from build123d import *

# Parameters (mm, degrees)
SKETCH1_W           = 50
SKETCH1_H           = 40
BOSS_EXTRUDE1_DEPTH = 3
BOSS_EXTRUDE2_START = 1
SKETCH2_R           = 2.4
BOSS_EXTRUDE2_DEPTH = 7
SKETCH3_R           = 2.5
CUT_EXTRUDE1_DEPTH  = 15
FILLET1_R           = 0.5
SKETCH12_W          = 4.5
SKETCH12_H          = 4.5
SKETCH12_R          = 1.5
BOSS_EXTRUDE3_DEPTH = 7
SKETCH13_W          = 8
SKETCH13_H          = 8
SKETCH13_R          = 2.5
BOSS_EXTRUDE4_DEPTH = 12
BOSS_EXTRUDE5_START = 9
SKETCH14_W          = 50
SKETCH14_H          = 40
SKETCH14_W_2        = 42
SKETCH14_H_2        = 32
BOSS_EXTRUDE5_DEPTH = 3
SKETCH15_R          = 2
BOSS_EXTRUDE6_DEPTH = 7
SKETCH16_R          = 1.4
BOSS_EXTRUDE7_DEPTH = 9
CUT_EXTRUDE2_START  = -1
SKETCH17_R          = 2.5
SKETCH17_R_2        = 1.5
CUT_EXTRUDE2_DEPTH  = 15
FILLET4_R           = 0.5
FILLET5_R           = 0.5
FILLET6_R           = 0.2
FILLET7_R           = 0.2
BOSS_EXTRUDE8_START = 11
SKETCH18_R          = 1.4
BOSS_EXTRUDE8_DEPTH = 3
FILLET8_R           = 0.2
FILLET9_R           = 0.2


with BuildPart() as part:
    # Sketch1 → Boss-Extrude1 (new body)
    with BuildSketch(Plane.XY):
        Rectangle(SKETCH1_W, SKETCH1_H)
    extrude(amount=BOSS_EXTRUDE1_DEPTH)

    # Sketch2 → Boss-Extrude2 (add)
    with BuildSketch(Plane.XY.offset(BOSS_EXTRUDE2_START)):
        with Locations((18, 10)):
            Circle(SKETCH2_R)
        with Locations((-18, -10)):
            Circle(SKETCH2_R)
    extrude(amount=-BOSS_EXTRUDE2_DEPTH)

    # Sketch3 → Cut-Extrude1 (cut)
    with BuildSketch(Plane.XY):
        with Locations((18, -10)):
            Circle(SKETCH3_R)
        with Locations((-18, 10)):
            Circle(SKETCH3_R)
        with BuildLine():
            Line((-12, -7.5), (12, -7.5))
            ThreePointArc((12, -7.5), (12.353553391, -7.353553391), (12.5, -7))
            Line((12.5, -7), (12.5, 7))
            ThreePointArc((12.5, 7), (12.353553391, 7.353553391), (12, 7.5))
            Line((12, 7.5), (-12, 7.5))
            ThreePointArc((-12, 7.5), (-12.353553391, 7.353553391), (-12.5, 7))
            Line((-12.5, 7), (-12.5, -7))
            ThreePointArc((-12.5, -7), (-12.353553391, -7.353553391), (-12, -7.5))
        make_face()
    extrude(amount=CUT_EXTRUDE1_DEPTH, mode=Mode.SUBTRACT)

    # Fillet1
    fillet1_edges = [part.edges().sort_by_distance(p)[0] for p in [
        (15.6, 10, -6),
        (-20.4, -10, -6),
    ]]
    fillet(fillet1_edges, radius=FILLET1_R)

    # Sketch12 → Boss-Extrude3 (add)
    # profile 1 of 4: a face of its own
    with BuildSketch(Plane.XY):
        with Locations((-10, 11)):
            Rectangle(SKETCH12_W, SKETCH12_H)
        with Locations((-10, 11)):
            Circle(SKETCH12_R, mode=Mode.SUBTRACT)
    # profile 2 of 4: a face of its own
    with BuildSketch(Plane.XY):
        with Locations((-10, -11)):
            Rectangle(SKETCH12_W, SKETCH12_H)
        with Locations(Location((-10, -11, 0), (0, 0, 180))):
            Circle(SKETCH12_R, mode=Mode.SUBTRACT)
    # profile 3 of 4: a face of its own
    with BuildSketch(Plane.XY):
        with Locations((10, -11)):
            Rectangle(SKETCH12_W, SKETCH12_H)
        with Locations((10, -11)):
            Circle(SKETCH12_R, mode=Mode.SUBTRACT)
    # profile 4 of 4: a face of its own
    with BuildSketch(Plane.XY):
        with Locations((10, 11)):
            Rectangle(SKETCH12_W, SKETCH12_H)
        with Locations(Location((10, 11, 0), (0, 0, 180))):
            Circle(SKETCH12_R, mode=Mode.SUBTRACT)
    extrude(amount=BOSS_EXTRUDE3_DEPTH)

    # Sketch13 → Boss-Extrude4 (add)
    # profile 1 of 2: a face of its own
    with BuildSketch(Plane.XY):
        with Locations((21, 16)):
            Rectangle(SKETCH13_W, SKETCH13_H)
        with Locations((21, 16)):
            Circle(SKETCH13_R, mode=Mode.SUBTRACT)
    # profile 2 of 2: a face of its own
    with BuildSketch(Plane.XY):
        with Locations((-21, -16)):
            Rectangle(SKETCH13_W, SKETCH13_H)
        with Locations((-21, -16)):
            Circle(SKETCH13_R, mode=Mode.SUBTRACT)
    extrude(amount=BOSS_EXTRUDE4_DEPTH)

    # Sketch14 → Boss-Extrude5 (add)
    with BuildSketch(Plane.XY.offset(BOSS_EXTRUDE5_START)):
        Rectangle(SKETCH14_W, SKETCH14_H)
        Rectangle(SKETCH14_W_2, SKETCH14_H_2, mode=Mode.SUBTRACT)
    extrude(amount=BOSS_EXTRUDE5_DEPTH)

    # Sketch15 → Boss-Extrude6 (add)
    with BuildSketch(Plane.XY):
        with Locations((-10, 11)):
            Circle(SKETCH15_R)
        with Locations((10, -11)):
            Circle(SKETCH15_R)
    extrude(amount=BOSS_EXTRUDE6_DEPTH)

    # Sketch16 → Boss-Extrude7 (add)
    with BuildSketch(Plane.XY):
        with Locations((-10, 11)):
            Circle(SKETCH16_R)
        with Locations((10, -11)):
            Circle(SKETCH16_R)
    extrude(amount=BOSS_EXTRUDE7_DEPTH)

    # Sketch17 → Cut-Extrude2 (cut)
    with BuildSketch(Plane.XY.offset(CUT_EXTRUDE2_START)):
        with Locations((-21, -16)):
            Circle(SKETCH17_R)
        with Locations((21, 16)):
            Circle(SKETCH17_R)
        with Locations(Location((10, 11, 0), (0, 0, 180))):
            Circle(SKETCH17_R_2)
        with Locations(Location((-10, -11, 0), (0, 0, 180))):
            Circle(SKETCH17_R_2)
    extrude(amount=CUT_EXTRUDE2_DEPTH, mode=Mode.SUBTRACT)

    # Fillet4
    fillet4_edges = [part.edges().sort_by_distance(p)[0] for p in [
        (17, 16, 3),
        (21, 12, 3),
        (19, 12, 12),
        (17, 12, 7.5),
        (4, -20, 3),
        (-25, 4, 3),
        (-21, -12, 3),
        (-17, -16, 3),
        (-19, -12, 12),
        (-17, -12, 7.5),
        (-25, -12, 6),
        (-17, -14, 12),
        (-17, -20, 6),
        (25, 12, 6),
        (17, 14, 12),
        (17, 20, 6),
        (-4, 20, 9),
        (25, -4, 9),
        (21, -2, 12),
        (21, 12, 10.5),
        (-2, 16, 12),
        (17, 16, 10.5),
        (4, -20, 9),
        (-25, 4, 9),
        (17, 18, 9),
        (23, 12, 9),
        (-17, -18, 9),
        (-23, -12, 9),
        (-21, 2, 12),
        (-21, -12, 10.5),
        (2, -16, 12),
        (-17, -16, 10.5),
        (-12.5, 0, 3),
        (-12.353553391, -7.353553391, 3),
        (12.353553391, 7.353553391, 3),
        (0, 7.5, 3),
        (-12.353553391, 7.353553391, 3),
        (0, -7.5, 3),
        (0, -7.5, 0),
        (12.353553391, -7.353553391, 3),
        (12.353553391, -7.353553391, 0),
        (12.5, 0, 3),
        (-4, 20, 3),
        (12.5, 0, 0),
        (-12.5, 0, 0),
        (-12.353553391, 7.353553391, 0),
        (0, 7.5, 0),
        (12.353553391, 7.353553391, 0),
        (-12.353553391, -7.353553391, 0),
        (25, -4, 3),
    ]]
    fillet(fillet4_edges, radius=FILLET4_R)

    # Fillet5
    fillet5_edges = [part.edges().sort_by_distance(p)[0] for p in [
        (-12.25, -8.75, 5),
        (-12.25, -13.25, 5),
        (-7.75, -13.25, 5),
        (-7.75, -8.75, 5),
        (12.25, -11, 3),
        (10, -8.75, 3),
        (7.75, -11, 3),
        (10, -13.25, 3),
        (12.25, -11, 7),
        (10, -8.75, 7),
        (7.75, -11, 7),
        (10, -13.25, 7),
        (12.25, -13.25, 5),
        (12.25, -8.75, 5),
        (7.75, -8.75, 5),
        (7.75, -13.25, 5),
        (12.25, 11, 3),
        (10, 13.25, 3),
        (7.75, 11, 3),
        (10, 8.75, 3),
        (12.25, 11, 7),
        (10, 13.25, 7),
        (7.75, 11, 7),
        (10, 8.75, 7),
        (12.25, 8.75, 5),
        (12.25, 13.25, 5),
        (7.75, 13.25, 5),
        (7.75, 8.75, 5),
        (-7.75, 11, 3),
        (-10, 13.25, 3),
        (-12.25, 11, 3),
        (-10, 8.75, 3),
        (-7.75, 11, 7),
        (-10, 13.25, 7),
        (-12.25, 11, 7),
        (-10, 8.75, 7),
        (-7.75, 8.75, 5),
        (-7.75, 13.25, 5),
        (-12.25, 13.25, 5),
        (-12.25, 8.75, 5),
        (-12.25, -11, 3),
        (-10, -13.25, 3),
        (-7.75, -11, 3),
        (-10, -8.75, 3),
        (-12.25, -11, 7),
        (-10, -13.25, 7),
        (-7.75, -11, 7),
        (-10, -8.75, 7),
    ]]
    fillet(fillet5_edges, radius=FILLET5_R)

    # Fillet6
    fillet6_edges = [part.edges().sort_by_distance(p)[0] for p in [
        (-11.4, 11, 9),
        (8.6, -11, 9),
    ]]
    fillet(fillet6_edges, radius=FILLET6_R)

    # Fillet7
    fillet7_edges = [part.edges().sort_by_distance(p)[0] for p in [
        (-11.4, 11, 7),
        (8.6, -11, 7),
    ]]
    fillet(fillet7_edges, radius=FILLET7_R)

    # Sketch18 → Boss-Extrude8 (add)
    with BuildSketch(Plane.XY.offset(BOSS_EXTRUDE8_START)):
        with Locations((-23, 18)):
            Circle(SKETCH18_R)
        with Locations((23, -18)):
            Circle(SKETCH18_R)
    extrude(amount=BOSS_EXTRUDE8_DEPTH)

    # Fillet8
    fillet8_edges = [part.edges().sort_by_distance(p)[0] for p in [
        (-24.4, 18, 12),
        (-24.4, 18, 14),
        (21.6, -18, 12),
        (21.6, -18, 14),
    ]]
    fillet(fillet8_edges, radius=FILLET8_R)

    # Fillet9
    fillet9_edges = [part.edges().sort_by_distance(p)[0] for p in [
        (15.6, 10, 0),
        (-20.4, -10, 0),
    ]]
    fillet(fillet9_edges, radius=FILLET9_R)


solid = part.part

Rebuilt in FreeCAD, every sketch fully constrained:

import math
import FreeCAD as App
import Part
import Sketcher
from FreeCAD import Vector
Q = App.Units.Quantity


def edges_at(feature, points):
    """Names of the edges that pass closest to the given points."""
    edges = feature.Shape.Edges
    near = lambda p: min(range(len(edges)), key=lambda i: edges[i].distToShape(Part.Vertex(*p))[0])
    return sorted({f"Edge{near(p) + 1}" for p in points})

doc = App.newDocument("Part")
body = doc.addObject("PartDesign::Body", "Body")

sketch1 = doc.addObject("Sketcher::SketchObject", "Sketch")
body.addObject(sketch1)
sketch1.AttachmentSupport = (doc.XY_Plane, [""])
sketch1.MapMode = "FlatFace"
sketch1.addGeometry([
    Part.LineSegment(Vector(-25, 20, 0), Vector(-25, -20, 0)),
    Part.LineSegment(Vector(-25, -20, 0), Vector(25, -20, 0)),
    Part.LineSegment(Vector(25, -20, 0), Vector(25, 20, 0)),
    Part.LineSegment(Vector(25, 20, 0), Vector(-25, 20, 0)),
], False)
sketch1.addConstraint([
    Sketcher.Constraint("Coincident", 0, 2, 1, 1),
    Sketcher.Constraint("Coincident", 1, 2, 2, 1),
    Sketcher.Constraint("Coincident", 2, 2, 3, 1),
    Sketcher.Constraint("Coincident", 3, 2, 0, 1),
    Sketcher.Constraint("Vertical", 0),
    Sketcher.Constraint("Horizontal", 1),
    Sketcher.Constraint("Vertical", 2),
    Sketcher.Constraint("Horizontal", 3),
    Sketcher.Constraint("Symmetric", 0, 2, 2, 2, -1, 1),
    Sketcher.Constraint("DistanceX", 1, 1, 1, 2, Q("50 mm")),
    Sketcher.Constraint("DistanceY", 0, 2, 0, 1, Q("40 mm")),
])
pad1 = doc.addObject("PartDesign::Pad", "Pad")
body.addObject(pad1)
pad1.Profile = sketch1
pad1.Length = 3

sketch2 = doc.addObject("Sketcher::SketchObject", "Sketch001")
body.addObject(sketch2)
sketch2.AttachmentSupport = (doc.XY_Plane, [""])
sketch2.MapMode = "FlatFace"
sketch2.AttachmentOffset = App.Placement(Vector(0, 0, 1), App.Rotation())
sketch2.addGeometry([
    Part.Circle(Vector(18, 10, 0), Vector(0, 0, 1), 2.4),
    Part.Circle(Vector(-18, -10, 0), Vector(0, 0, 1), 2.4),
], False)
sketch2.addConstraint([
    Sketcher.Constraint("Equal", 0, 1),
    Sketcher.Constraint("Symmetric", 0, 3, 1, 3, -1, 1),
    Sketcher.Constraint("Diameter", 0, Q("4.8 mm")),
    Sketcher.Constraint("DistanceX", -1, 1, 0, 3, Q("18 mm")),
    Sketcher.Constraint("DistanceY", -1, 1, 0, 3, Q("10 mm")),
])
pad2 = doc.addObject("PartDesign::Pad", "Pad001")
body.addObject(pad2)
pad2.Profile = sketch2
pad2.Length = 7
pad2.Reversed = True

sketch3 = doc.addObject("Sketcher::SketchObject", "Sketch002")
body.addObject(sketch3)
sketch3.AttachmentSupport = (doc.XY_Plane, [""])
sketch3.MapMode = "FlatFace"
sketch3.addGeometry([
    Part.Circle(Vector(18, -10, 0), Vector(0, 0, 1), 2.5),
    Part.Circle(Vector(-18, 10, 0), Vector(0, 0, 1), 2.5),
    Part.LineSegment(Vector(-12, -7.5, 0), Vector(12, -7.5, 0)),
    Part.ArcOfCircle(Part.Circle(Vector(12, -7, 0), Vector(0, 0, 1), 0.5), math.radians(-90), math.radians(0)),
    Part.LineSegment(Vector(12.5, -7, 0), Vector(12.5, 7, 0)),
    Part.ArcOfCircle(Part.Circle(Vector(12, 7, 0), Vector(0, 0, 1), 0.5), math.radians(0), math.radians(90)),
    Part.LineSegment(Vector(12, 7.5, 0), Vector(-12, 7.5, 0)),
    Part.ArcOfCircle(Part.Circle(Vector(-12, 7, 0), Vector(0, 0, 1), 0.5), math.radians(90), math.radians(180)),
    Part.LineSegment(Vector(-12.5, 7, 0), Vector(-12.5, -7, 0)),
    Part.ArcOfCircle(Part.Circle(Vector(-12, -7, 0), Vector(0, 0, 1), 0.5), math.radians(180), math.radians(270)),
], False)
sketch3.addConstraint([
    Sketcher.Constraint("Tangent", 2, 2, 3, 1),
    Sketcher.Constraint("Tangent", 3, 2, 4, 1),
    Sketcher.Constraint("Tangent", 4, 2, 5, 1),
    Sketcher.Constraint("Tangent", 5, 2, 6, 1),
    Sketcher.Constraint("Tangent", 6, 2, 7, 1),
    Sketcher.Constraint("Tangent", 7, 2, 8, 1),
    Sketcher.Constraint("Tangent", 8, 2, 9, 1),
    Sketcher.Constraint("Tangent", 9, 2, 2, 1),
    Sketcher.Constraint("Horizontal", 2),
    Sketcher.Constraint("Vertical", 4),
    Sketcher.Constraint("Horizontal", 6),
    Sketcher.Constraint("Vertical", 8),
    Sketcher.Constraint("Equal", 0, 1),
    Sketcher.Constraint("Equal", 3, 5),
    Sketcher.Constraint("Equal", 5, 7),
    Sketcher.Constraint("Equal", 7, 9),
    Sketcher.Constraint("Symmetric", 0, 3, 1, 3, -1, 1),
    Sketcher.Constraint("Symmetric", 3, 3, 7, 3, -1, 1),
    Sketcher.Constraint("Diameter", 0, Q("5 mm")),
    Sketcher.Constraint("Radius", 3, Q("0.5 mm")),
    Sketcher.Constraint("DistanceX", 2, 1, 2, 2, Q("24 mm")),
    Sketcher.Constraint("DistanceY", 4, 1, 4, 2, Q("14 mm")),
    Sketcher.Constraint("DistanceX", -1, 1, 0, 3, Q("18 mm")),
    Sketcher.Constraint("DistanceY", 0, 3, -1, 1, Q("10 mm")),
])
pocket1 = doc.addObject("PartDesign::Pocket", "Pocket")
body.addObject(pocket1)
pocket1.Profile = sketch3
pocket1.Length = 15
pocket1.Reversed = True
doc.recompute()

fillet = doc.addObject("PartDesign::Fillet", "Fillet")
body.addObject(fillet)
fillet.Base = (pocket1, edges_at(pocket1, [(15.6, 10, -6), (-20.4, -10, -6)]))
fillet.Radius = 0.5

sketch4 = doc.addObject("Sketcher::SketchObject", "Sketch003")
body.addObject(sketch4)
sketch4.AttachmentSupport = (doc.XY_Plane, [""])
sketch4.MapMode = "FlatFace"
sketch4.addGeometry([
    Part.LineSegment(Vector(-12.25, 13.25, 0), Vector(-12.25, 8.75, 0)),
    Part.LineSegment(Vector(-12.25, 8.75, 0), Vector(-7.75, 8.75, 0)),
    Part.LineSegment(Vector(-7.75, 8.75, 0), Vector(-7.75, 13.25, 0)),
    Part.LineSegment(Vector(-7.75, 13.25, 0), Vector(-12.25, 13.25, 0)),
    Part.Circle(Vector(-10, 11, 0), Vector(0, 0, 1), 1.5),
    Part.LineSegment(Vector(-12.25, -8.75, 0), Vector(-12.25, -13.25, 0)),
    Part.LineSegment(Vector(-12.25, -13.25, 0), Vector(-7.75, -13.25, 0)),
    Part.LineSegment(Vector(-7.75, -13.25, 0), Vector(-7.75, -8.75, 0)),
    Part.LineSegment(Vector(-7.75, -8.75, 0), Vector(-12.25, -8.75, 0)),
    Part.Circle(Vector(-10, -11, 0), Vector(0, 0, 1), 1.5),
    Part.LineSegment(Vector(7.75, -8.75, 0), Vector(7.75, -13.25, 0)),
    Part.LineSegment(Vector(7.75, -13.25, 0), Vector(12.25, -13.25, 0)),
    Part.LineSegment(Vector(12.25, -13.25, 0), Vector(12.25, -8.75, 0)),
    Part.LineSegment(Vector(12.25, -8.75, 0), Vector(7.75, -8.75, 0)),
    Part.Circle(Vector(10, -11, 0), Vector(0, 0, 1), 1.5),
    Part.LineSegment(Vector(7.75, 13.25, 0), Vector(7.75, 8.75, 0)),
    Part.LineSegment(Vector(7.75, 8.75, 0), Vector(12.25, 8.75, 0)),
    Part.LineSegment(Vector(12.25, 8.75, 0), Vector(12.25, 13.25, 0)),
    Part.LineSegment(Vector(12.25, 13.25, 0), Vector(7.75, 13.25, 0)),
    Part.Circle(Vector(10, 11, 0), Vector(0, 0, 1), 1.5),
], False)
sketch4.addConstraint([
    Sketcher.Constraint("Coincident", 0, 2, 1, 1),
    Sketcher.Constraint("Coincident", 1, 2, 2, 1),
    Sketcher.Constraint("Coincident", 2, 2, 3, 1),
    Sketcher.Constraint("Coincident", 3, 2, 0, 1),
    Sketcher.Constraint("Coincident", 5, 2, 6, 1),
    Sketcher.Constraint("Coincident", 6, 2, 7, 1),
    Sketcher.Constraint("Coincident", 7, 2, 8, 1),
    Sketcher.Constraint("Coincident", 8, 2, 5, 1),
    Sketcher.Constraint("Coincident", 10, 2, 11, 1),
    Sketcher.Constraint("Coincident", 11, 2, 12, 1),
    Sketcher.Constraint("Coincident", 12, 2, 13, 1),
    Sketcher.Constraint("Coincident", 13, 2, 10, 1),
    Sketcher.Constraint("Coincident", 15, 2, 16, 1),
    Sketcher.Constraint("Coincident", 16, 2, 17, 1),
    Sketcher.Constraint("Coincident", 17, 2, 18, 1),
    Sketcher.Constraint("Coincident", 18, 2, 15, 1),
    Sketcher.Constraint("Vertical", 0),
    Sketcher.Constraint("Horizontal", 1),
    Sketcher.Constraint("Vertical", 2),
    Sketcher.Constraint("Horizontal", 3),
    Sketcher.Constraint("Vertical", 5),
    Sketcher.Constraint("Horizontal", 6),
    Sketcher.Constraint("Vertical", 7),
    Sketcher.Constraint("Horizontal", 8),
    Sketcher.Constraint("Vertical", 10),
    Sketcher.Constraint("Horizontal", 11),
    Sketcher.Constraint("Vertical", 12),
    Sketcher.Constraint("Horizontal", 13),
    Sketcher.Constraint("Vertical", 15),
    Sketcher.Constraint("Horizontal", 16),
    Sketcher.Constraint("Vertical", 17),
    Sketcher.Constraint("Horizontal", 18),
    Sketcher.Constraint("Equal", 4, 9),
    Sketcher.Constraint("Equal", 9, 14),
    Sketcher.Constraint("Equal", 14, 19),
    Sketcher.Constraint("Symmetric", 4, 3, 14, 3, -1, 1),
    Sketcher.Constraint("Symmetric", 9, 3, 19, 3, -1, 1),
    Sketcher.Constraint("Symmetric", 2, 2, 10, 2, -1, 1),
    Sketcher.Constraint("Symmetric", 0, 2, 12, 2, -1, 1),
    Sketcher.Constraint("Symmetric", 7, 2, 15, 2, -1, 1),
    Sketcher.Constraint("Symmetric", 5, 2, 17, 2, -1, 1),
    Sketcher.Constraint("Symmetric", 9, 3, 14, 3, -2),
    Sketcher.Constraint("Symmetric", 6, 2, 10, 2, -2),
    Sketcher.Constraint("Symmetric", 8, 2, 12, 2, -2),
    Sketcher.Constraint("Equal", 18, 0),
    Sketcher.Constraint("Diameter", 4, Q("3 mm")),
    Sketcher.Constraint("DistanceX", 1, 1, 1, 2, Q("4.5 mm")),
    Sketcher.Constraint("DistanceX", 4, 3, -1, 1, Q("10 mm")),
    Sketcher.Constraint("DistanceY", -1, 1, 4, 3, Q("11 mm")),
    Sketcher.Constraint("DistanceY", 5, 2, 0, 2, Q("22 mm")),
    Sketcher.Constraint("DistanceX", 5, 2, 10, 2, Q("20 mm")),
])
pad3 = doc.addObject("PartDesign::Pad", "Pad002")
body.addObject(pad3)
pad3.Profile = sketch4
pad3.Length = 7

sketch5 = doc.addObject("Sketcher::SketchObject", "Sketch004")
body.addObject(sketch5)
sketch5.AttachmentSupport = (doc.XY_Plane, [""])
sketch5.MapMode = "FlatFace"
sketch5.addGeometry([
    Part.LineSegment(Vector(17, 20, 0), Vector(17, 12, 0)),
    Part.LineSegment(Vector(17, 12, 0), Vector(25, 12, 0)),
    Part.LineSegment(Vector(25, 12, 0), Vector(25, 20, 0)),
    Part.LineSegment(Vector(25, 20, 0), Vector(17, 20, 0)),
    Part.Circle(Vector(21, 16, 0), Vector(0, 0, 1), 2.5),
    Part.LineSegment(Vector(-25, -12, 0), Vector(-25, -20, 0)),
    Part.LineSegment(Vector(-25, -20, 0), Vector(-17, -20, 0)),
    Part.LineSegment(Vector(-17, -20, 0), Vector(-17, -12, 0)),
    Part.LineSegment(Vector(-17, -12, 0), Vector(-25, -12, 0)),
    Part.Circle(Vector(-21, -16, 0), Vector(0, 0, 1), 2.5),
], False)
sketch5.addConstraint([
    Sketcher.Constraint("Coincident", 0, 2, 1, 1),
    Sketcher.Constraint("Coincident", 1, 2, 2, 1),
    Sketcher.Constraint("Coincident", 2, 2, 3, 1),
    Sketcher.Constraint("Coincident", 3, 2, 0, 1),
    Sketcher.Constraint("Coincident", 5, 2, 6, 1),
    Sketcher.Constraint("Coincident", 6, 2, 7, 1),
    Sketcher.Constraint("Coincident", 7, 2, 8, 1),
    Sketcher.Constraint("Coincident", 8, 2, 5, 1),
    Sketcher.Constraint("Vertical", 0),
    Sketcher.Constraint("Horizontal", 1),
    Sketcher.Constraint("Vertical", 2),
    Sketcher.Constraint("Horizontal", 3),
    Sketcher.Constraint("Vertical", 5),
    Sketcher.Constraint("Horizontal", 6),
    Sketcher.Constraint("Vertical", 7),
    Sketcher.Constraint("Horizontal", 8),
    Sketcher.Constraint("Equal", 4, 9),
    Sketcher.Constraint("Symmetric", 4, 3, 9, 3, -1, 1),
    Sketcher.Constraint("Symmetric", 2, 2, 5, 2, -1, 1),
    Sketcher.Constraint("Symmetric", 0, 2, 7, 2, -1, 1),
    Sketcher.Constraint("Equal", 8, 0),
    Sketcher.Constraint("Diameter", 4, Q("5 mm")),
    Sketcher.Constraint("DistanceX", 1, 1, 1, 2, Q("8 mm")),
    Sketcher.Constraint("DistanceX", -1, 1, 4, 3, Q("21 mm")),
    Sketcher.Constraint("DistanceY", -1, 1, 4, 3, Q("16 mm")),
    Sketcher.Constraint("DistanceX", -1, 1, 0, 2, Q("17 mm")),
    Sketcher.Constraint("DistanceY", -1, 1, 0, 2, Q("12 mm")),
])
pad4 = doc.addObject("PartDesign::Pad", "Pad003")
body.addObject(pad4)
pad4.Profile = sketch5
pad4.Length = 12

sketch6 = doc.addObject("Sketcher::SketchObject", "Sketch005")
body.addObject(sketch6)
sketch6.AttachmentSupport = (doc.XY_Plane, [""])
sketch6.MapMode = "FlatFace"
sketch6.AttachmentOffset = App.Placement(Vector(0, 0, 9), App.Rotation())
sketch6.addGeometry([
    Part.LineSegment(Vector(-25, 20, 0), Vector(-25, -20, 0)),
    Part.LineSegment(Vector(-25, -20, 0), Vector(25, -20, 0)),
    Part.LineSegment(Vector(25, -20, 0), Vector(25, 20, 0)),
    Part.LineSegment(Vector(25, 20, 0), Vector(-25, 20, 0)),
    Part.LineSegment(Vector(21, -16, 0), Vector(-21, -16, 0)),
    Part.LineSegment(Vector(-21, -16, 0), Vector(-21, 16, 0)),
    Part.LineSegment(Vector(-21, 16, 0), Vector(21, 16, 0)),
    Part.LineSegment(Vector(21, 16, 0), Vector(21, -16, 0)),
], False)
sketch6.addConstraint([
    Sketcher.Constraint("Coincident", 0, 2, 1, 1),
    Sketcher.Constraint("Coincident", 1, 2, 2, 1),
    Sketcher.Constraint("Coincident", 2, 2, 3, 1),
    Sketcher.Constraint("Coincident", 3, 2, 0, 1),
    Sketcher.Constraint("Coincident", 4, 2, 5, 1),
    Sketcher.Constraint("Coincident", 5, 2, 6, 1),
    Sketcher.Constraint("Coincident", 6, 2, 7, 1),
    Sketcher.Constraint("Coincident", 7, 2, 4, 1),
    Sketcher.Constraint("Vertical", 0),
    Sketcher.Constraint("Horizontal", 1),
    Sketcher.Constraint("Vertical", 2),
    Sketcher.Constraint("Horizontal", 3),
    Sketcher.Constraint("Horizontal", 4),
    Sketcher.Constraint("Vertical", 5),
    Sketcher.Constraint("Horizontal", 6),
    Sketcher.Constraint("Vertical", 7),
    Sketcher.Constraint("Symmetric", 0, 2, 2, 2, -1, 1),
    Sketcher.Constraint("Symmetric", 4, 2, 6, 2, -1, 1),
    Sketcher.Constraint("DistanceX", 1, 1, 1, 2, Q("50 mm")),
    Sketcher.Constraint("DistanceX", 4, 2, 4, 1, Q("42 mm")),
    Sketcher.Constraint("DistanceY", 0, 2, 0, 1, Q("40 mm")),
    Sketcher.Constraint("DistanceY", 5, 1, 5, 2, Q("32 mm")),
])
pad5 = doc.addObject("PartDesign::Pad", "Pad004")
body.addObject(pad5)
pad5.Profile = sketch6
pad5.Length = 3

sketch7 = doc.addObject("Sketcher::SketchObject", "Sketch006")
body.addObject(sketch7)
sketch7.AttachmentSupport = (doc.XY_Plane, [""])
sketch7.MapMode = "FlatFace"
sketch7.addGeometry([
    Part.Circle(Vector(-10, 11, 0), Vector(0, 0, 1), 2),
    Part.Circle(Vector(10, -11, 0), Vector(0, 0, 1), 2),
], False)
sketch7.addConstraint([
    Sketcher.Constraint("Equal", 0, 1),
    Sketcher.Constraint("Symmetric", 0, 3, 1, 3, -1, 1),
    Sketcher.Constraint("Diameter", 0, Q("4 mm")),
    Sketcher.Constraint("DistanceX", 0, 3, -1, 1, Q("10 mm")),
    Sketcher.Constraint("DistanceY", -1, 1, 0, 3, Q("11 mm")),
])
pad6 = doc.addObject("PartDesign::Pad", "Pad005")
body.addObject(pad6)
pad6.Profile = sketch7
pad6.Length = 7

sketch8 = doc.addObject("Sketcher::SketchObject", "Sketch007")
body.addObject(sketch8)
sketch8.AttachmentSupport = (doc.XY_Plane, [""])
sketch8.MapMode = "FlatFace"
sketch8.addGeometry([
    Part.Circle(Vector(-10, 11, 0), Vector(0, 0, 1), 1.4),
    Part.Circle(Vector(10, -11, 0), Vector(0, 0, 1), 1.4),
], False)
sketch8.addConstraint([
    Sketcher.Constraint("Equal", 0, 1),
    Sketcher.Constraint("Symmetric", 0, 3, 1, 3, -1, 1),
    Sketcher.Constraint("Diameter", 0, Q("2.8 mm")),
    Sketcher.Constraint("DistanceX", 0, 3, -1, 1, Q("10 mm")),
    Sketcher.Constraint("DistanceY", -1, 1, 0, 3, Q("11 mm")),
])
pad7 = doc.addObject("PartDesign::Pad", "Pad006")
body.addObject(pad7)
pad7.Profile = sketch8
pad7.Length = 9

sketch9 = doc.addObject("Sketcher::SketchObject", "Sketch008")
body.addObject(sketch9)
sketch9.AttachmentSupport = (doc.XY_Plane, [""])
sketch9.MapMode = "FlatFace"
sketch9.AttachmentOffset = App.Placement(Vector(0, 0, -1), App.Rotation())
sketch9.addGeometry([
    Part.Circle(Vector(-21, -16, 0), Vector(0, 0, 1), 2.5),
    Part.Circle(Vector(21, 16, 0), Vector(0, 0, 1), 2.5),
    Part.Circle(Vector(10, 11, 0), Vector(0, 0, 1), 1.5),
    Part.Circle(Vector(-10, -11, 0), Vector(0, 0, 1), 1.5),
], False)
sketch9.addConstraint([
    Sketcher.Constraint("Equal", 0, 1),
    Sketcher.Constraint("Equal", 2, 3),
    Sketcher.Constraint("Symmetric", 0, 3, 1, 3, -1, 1),
    Sketcher.Constraint("Symmetric", 2, 3, 3, 3, -1, 1),
    Sketcher.Constraint("Diameter", 0, Q("5 mm")),
    Sketcher.Constraint("Diameter", 2, Q("3 mm")),
    Sketcher.Constraint("DistanceX", 0, 3, -1, 1, Q("21 mm")),
    Sketcher.Constraint("DistanceY", 0, 3, -1, 1, Q("16 mm")),
    Sketcher.Constraint("DistanceX", -1, 1, 2, 3, Q("10 mm")),
    Sketcher.Constraint("DistanceY", -1, 1, 2, 3, Q("11 mm")),
])
pocket2 = doc.addObject("PartDesign::Pocket", "Pocket001")
body.addObject(pocket2)
pocket2.Profile = sketch9
pocket2.Length = 15
pocket2.Reversed = True
doc.recompute()

fillet2 = doc.addObject("PartDesign::Fillet", "Fillet001")
body.addObject(fillet2)
fillet2.Base = (pocket2, edges_at(pocket2, [
    (17, 16, 3),
    (21, 12, 3),
    (19, 12, 12),
    (17, 12, 7.5),
    (4, -20, 3),
    (-25, 4, 3),
    (-21, -12, 3),
    (-17, -16, 3),
    (-19, -12, 12),
    (-17, -12, 7.5),
    (-25, -12, 6),
    (-17, -14, 12),
    (-17, -20, 6),
    (25, 12, 6),
    (17, 14, 12),
    (17, 20, 6),
    (-4, 20, 9),
    (25, -4, 9),
    (21, -2, 12),
    (21, 12, 10.5),
    (-2, 16, 12),
    (17, 16, 10.5),
    (4, -20, 9),
    (-25, 4, 9),
    (17, 18, 9),
    (23, 12, 9),
    (-17, -18, 9),
    (-23, -12, 9),
    (-21, 2, 12),
    (-21, -12, 10.5),
    (2, -16, 12),
    (-17, -16, 10.5),
    (-12.5, 0, 3),
    (-12.354, -7.354, 3),
    (12.354, 7.354, 3),
    (0, 7.5, 3),
    (-12.354, 7.354, 3),
    (0, -7.5, 3),
    (0, -7.5, 0),
    (12.354, -7.354, 3),
    (12.354, -7.354, 0),
    (12.5, 0, 3),
    (-4, 20, 3),
    (12.5, 0, 0),
    (-12.5, 0, 0),
    (-12.354, 7.354, 0),
    (0, 7.5, 0),
    (12.354, 7.354, 0),
    (-12.354, -7.354, 0),
    (25, -4, 3),
]))
fillet2.Radius = 0.5
doc.recompute()

fillet3 = doc.addObject("PartDesign::Fillet", "Fillet002")
body.addObject(fillet3)
fillet3.Base = (fillet2, edges_at(fillet2, [
    (-12.25, -8.75, 5),
    (-12.25, -13.25, 5),
    (-7.75, -13.25, 5),
    (-7.75, -8.75, 5),
    (12.25, -11, 3),
    (10, -8.75, 3),
    (7.75, -11, 3),
    (10, -13.25, 3),
    (12.25, -11, 7),
    (10, -8.75, 7),
    (7.75, -11, 7),
    (10, -13.25, 7),
    (12.25, -13.25, 5),
    (12.25, -8.75, 5),
    (7.75, -8.75, 5),
    (7.75, -13.25, 5),
    (12.25, 11, 3),
    (10, 13.25, 3),
    (7.75, 11, 3),
    (10, 8.75, 3),
    (12.25, 11, 7),
    (10, 13.25, 7),
    (7.75, 11, 7),
    (10, 8.75, 7),
    (12.25, 8.75, 5),
    (12.25, 13.25, 5),
    (7.75, 13.25, 5),
    (7.75, 8.75, 5),
    (-7.75, 11, 3),
    (-10, 13.25, 3),
    (-12.25, 11, 3),
    (-10, 8.75, 3),
    (-7.75, 11, 7),
    (-10, 13.25, 7),
    (-12.25, 11, 7),
    (-10, 8.75, 7),
    (-7.75, 8.75, 5),
    (-7.75, 13.25, 5),
    (-12.25, 13.25, 5),
    (-12.25, 8.75, 5),
    (-12.25, -11, 3),
    (-10, -13.25, 3),
    (-7.75, -11, 3),
    (-10, -8.75, 3),
    (-12.25, -11, 7),
    (-10, -13.25, 7),
    (-7.75, -11, 7),
    (-10, -8.75, 7),
]))
fillet3.Radius = 0.5
doc.recompute()

fillet4 = doc.addObject("PartDesign::Fillet", "Fillet003")
body.addObject(fillet4)
fillet4.Base = (fillet3, edges_at(fillet3, [(-11.4, 11, 9), (8.6, -11, 9)]))
fillet4.Radius = 0.2
doc.recompute()

fillet5 = doc.addObject("PartDesign::Fillet", "Fillet004")
body.addObject(fillet5)
fillet5.Base = (fillet4, edges_at(fillet4, [(-11.4, 11, 7), (8.6, -11, 7)]))
fillet5.Radius = 0.2

sketch10 = doc.addObject("Sketcher::SketchObject", "Sketch009")
body.addObject(sketch10)
sketch10.AttachmentSupport = (doc.XY_Plane, [""])
sketch10.MapMode = "FlatFace"
sketch10.AttachmentOffset = App.Placement(Vector(0, 0, 11), App.Rotation())
sketch10.addGeometry([
    Part.Circle(Vector(-23, 18, 0), Vector(0, 0, 1), 1.4),
    Part.Circle(Vector(23, -18, 0), Vector(0, 0, 1), 1.4),
], False)
sketch10.addConstraint([
    Sketcher.Constraint("Equal", 0, 1),
    Sketcher.Constraint("Symmetric", 0, 3, 1, 3, -1, 1),
    Sketcher.Constraint("Diameter", 0, Q("2.8 mm")),
    Sketcher.Constraint("DistanceX", 0, 3, -1, 1, Q("23 mm")),
    Sketcher.Constraint("DistanceY", -1, 1, 0, 3, Q("18 mm")),
])
pad8 = doc.addObject("PartDesign::Pad", "Pad007")
body.addObject(pad8)
pad8.Profile = sketch10
pad8.Length = 3
doc.recompute()

fillet6 = doc.addObject("PartDesign::Fillet", "Fillet005")
body.addObject(fillet6)
fillet6.Base = (pad8, edges_at(pad8, [
    (-24.4, 18, 12),
    (-24.4, 18, 14),
    (21.6, -18, 12),
    (21.6, -18, 14),
]))
fillet6.Radius = 0.2
doc.recompute()

fillet7 = doc.addObject("PartDesign::Fillet", "Fillet006")
body.addObject(fillet7)
fillet7.Base = (fillet6, edges_at(fillet6, [(15.6, 10, 0), (-20.4, -10, 0)]))
fillet7.Radius = 0.2

doc.recompute()
